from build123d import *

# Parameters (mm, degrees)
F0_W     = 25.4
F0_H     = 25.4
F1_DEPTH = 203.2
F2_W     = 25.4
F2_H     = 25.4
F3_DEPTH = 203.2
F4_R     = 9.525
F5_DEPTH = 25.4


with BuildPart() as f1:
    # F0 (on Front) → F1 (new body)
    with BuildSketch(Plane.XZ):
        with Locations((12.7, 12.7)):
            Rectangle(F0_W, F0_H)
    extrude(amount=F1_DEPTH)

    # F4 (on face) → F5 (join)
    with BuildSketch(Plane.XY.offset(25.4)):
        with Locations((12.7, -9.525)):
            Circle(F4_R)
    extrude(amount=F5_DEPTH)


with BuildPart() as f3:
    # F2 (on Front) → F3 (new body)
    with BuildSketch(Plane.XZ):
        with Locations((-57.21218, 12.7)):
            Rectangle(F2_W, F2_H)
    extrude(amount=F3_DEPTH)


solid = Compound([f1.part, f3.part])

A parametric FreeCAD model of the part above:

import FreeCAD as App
import Part
import Sketcher

V = App.Vector
Q = App.Units.Quantity


def add_polygon(sketch, points):
    """Adds a closed chain of lines whose ends are joined by coincident constraints."""
    first, n = sketch.GeometryCount, len(points)
    for a, b in zip(points, points[1:] + points[:1]):
        sketch.addGeometry(Part.LineSegment(App.Vector(*a, 0), App.Vector(*b, 0)), False)
    for i in range(n):
        sketch.addConstraint(Sketcher.Constraint("Coincident", first + i, 2, first + (i + 1) % n, 1))

doc = App.newDocument("Part")
body = doc.addObject("PartDesign::Body", "Body")

sketch1 = body.newObject("Sketcher::SketchObject", "Sketch")
sketch1.AttachmentSupport = (doc.getObject("XZ_Plane"), [""])
sketch1.MapMode = "FlatFace"
add_polygon(sketch1, [(0, 25), (0, 0), (25, 0), (25, 25)])
sketch1.addConstraint([
    Sketcher.Constraint("Vertical", 0),
    Sketcher.Constraint("Horizontal", 1),
    Sketcher.Constraint("Vertical", 2),
    Sketcher.Constraint("Horizontal", 3),
    Sketcher.Constraint("Coincident", 0, 2, -1, 1),
    Sketcher.Constraint("Equal", 3, 0),
    Sketcher.Constraint("DistanceX", 1, 1, 1, 2, Q("1 in")),
])
pad1 = body.newObject("PartDesign::Pad", "Pad")
pad1.Profile = sketch1
pad1.Length = Q("8 in")

sketch2 = body.newObject("Sketcher::SketchObject", "Sketch001")
sketch2.AttachmentSupport = (doc.getObject("XY_Plane"), [""])
sketch2.MapMode = "FlatFace"
sketch2.AttachmentOffset = App.Placement(V(0, 0, 1 * 25.4), App.Rotation())
sketch2.addGeometry(Part.Circle(V(13, -10, 0), V(0, 0, 1), 10), False)
sketch2.addConstraint([
    Sketcher.Constraint("Diameter", 0, Q("0.75 in")),
    Sketcher.Constraint("DistanceX", -1, 1, 0, 3, Q("0.5 in")),
    Sketcher.Constraint("DistanceY", 0, 3, -1, 1, Q("0.375 in")),
])
pad2 = body.newObject("PartDesign::Pad", "Pad001")
pad2.Profile = sketch2
pad2.Length = Q("1 in")
body2 = doc.addObject("PartDesign::Body", "Body001")

sketch3 = body2.newObject("Sketcher::SketchObject", "Sketch002")
sketch3.AttachmentSupport = (doc.getObject("XZ_Plane001"), [""])
sketch3.MapMode = "FlatFace"
add_polygon(sketch3, [(-70, 25), (-70, 0), (-45, 0), (-45, 25)])
sketch3.addConstraint([
    Sketcher.Constraint("Vertical", 0),
    Sketcher.Constraint("Horizontal", 1),
    Sketcher.Constraint("Vertical", 2),
    Sketcher.Constraint("Horizontal", 3),
    Sketcher.Constraint("PointOnObject", 0, 2, -1),
    Sketcher.Constraint("Equal", 3, 0),
    Sketcher.Constraint("DistanceX", 1, 1, 1, 2, Q("1 in")),
    Sketcher.Constraint("DistanceX", 0, 2, -1, 1, Q("69.91218 mm")),
])
pad3 = body2.newObject("PartDesign::Pad", "Pad002")
pad3.Profile = sketch3
pad3.Length = Q("8 in")

doc.recompute()
